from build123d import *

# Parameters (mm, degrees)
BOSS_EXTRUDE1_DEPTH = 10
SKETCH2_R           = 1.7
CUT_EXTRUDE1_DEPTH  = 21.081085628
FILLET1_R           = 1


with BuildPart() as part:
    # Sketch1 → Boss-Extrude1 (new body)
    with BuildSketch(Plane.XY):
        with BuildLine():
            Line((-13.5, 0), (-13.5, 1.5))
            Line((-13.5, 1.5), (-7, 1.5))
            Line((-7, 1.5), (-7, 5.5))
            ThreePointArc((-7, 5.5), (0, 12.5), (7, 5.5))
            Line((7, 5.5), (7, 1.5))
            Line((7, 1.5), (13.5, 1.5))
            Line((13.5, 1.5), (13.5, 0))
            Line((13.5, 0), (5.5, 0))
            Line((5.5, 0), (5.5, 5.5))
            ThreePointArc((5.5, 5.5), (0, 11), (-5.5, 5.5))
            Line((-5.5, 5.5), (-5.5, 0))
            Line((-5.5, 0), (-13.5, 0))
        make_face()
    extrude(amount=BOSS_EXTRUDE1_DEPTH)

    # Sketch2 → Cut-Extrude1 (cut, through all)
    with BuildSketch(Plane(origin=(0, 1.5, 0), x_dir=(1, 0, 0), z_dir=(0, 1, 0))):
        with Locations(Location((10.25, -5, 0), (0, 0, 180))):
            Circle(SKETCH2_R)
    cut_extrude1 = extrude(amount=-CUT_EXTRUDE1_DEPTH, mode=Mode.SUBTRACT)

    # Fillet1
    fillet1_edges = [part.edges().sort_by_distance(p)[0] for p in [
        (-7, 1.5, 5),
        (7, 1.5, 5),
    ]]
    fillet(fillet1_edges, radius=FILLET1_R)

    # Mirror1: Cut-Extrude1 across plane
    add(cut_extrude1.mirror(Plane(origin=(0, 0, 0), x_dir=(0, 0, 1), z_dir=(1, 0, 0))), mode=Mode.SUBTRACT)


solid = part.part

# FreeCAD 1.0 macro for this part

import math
import FreeCAD as App
import Part
import Sketcher
from FreeCAD import Vector


def edges_at(feature, points):
    """Names of the edges that pass closest to the given points."""
    edges = feature.Shape.Edges
    near = lambda p: min(range(len(edges)), key=lambda i: edges[i].distToShape(Part.Vertex(*p))[0])
    return sorted({f"Edge{near(p) + 1}" for p in points})

doc = App.newDocument("Part")
body = doc.addObject("PartDesign::Body", "Body")

sketch1 = doc.addObject("Sketcher::SketchObject", "Sketch")
body.addObject(sketch1)
sketch1.AttachmentSupport = (doc.XY_Plane, [""])
sketch1.MapMode = "FlatFace"
sketch1.addGeometry(Part.LineSegment(Vector(-13.5, 1.5, 0), Vector(-13.5, 0, 0)), False)
sketch1.addGeometry(Part.LineSegment(Vector(-13.5, 0, 0), Vector(-5.5, 0, 0)), False)
sketch1.addGeometry(Part.LineSegment(Vector(-5.5, 0, 0), Vector(-5.5, 5.5, 0)), False)
sketch1.addGeometry(Part.ArcOfCircle(Part.Circle(Vector(0, 5.5, 0), Vector(0, 0, 1), 5.5), math.radians(0), math.radians(180)), False)
sketch1.addGeometry(Part.LineSegment(Vector(5.5, 5.5, 0), Vector(5.5, 0, 0)), False)
sketch1.addGeometry(Part.LineSegment(Vector(5.5, 0, 0), Vector(13.5, 0, 0)), False)
sketch1.addGeometry(Part.LineSegment(Vector(13.5, 0, 0), Vector(13.5, 1.5, 0)), False)
sketch1.addGeometry(Part.LineSegment(Vector(13.5, 1.5, 0), Vector(7, 1.5, 0)), False)
sketch1.addGeometry(Part.LineSegment(Vector(7, 1.5, 0), Vector(7, 5.5, 0)), False)
sketch1.addGeometry(Part.ArcOfCircle(Part.Circle(Vector(0, 5.5, 0), Vector(0, 0, 1), 7), math.radians(0), math.radians(180)), False)
sketch1.addGeometry(Part.LineSegment(Vector(-7, 5.5, 0), Vector(-7, 1.5, 0)), False)
sketch1.addGeometry(Part.LineSegment(Vector(-7, 1.5, 0), Vector(-13.5, 1.5, 0)), False)
sketch1.addConstraint(Sketcher.Constraint("Coincident", 0, 2, 1, 1))
sketch1.addConstraint(Sketcher.Constraint("Coincident", 1, 2, 2, 1))
sketch1.addConstraint(Sketcher.Constraint("Tangent", 2, 2, 3, 2))
sketch1.addConstraint(Sketcher.Constraint("Tangent", 3, 1, 4, 1))
sketch1.addConstraint(Sketcher.Constraint("Coincident", 4, 2, 5, 1))
sketch1.addConstraint(Sketcher.Constraint("Coincident", 5, 2, 6, 1))
sketch1.addConstraint(Sketcher.Constraint("Coincident", 6, 2, 7, 1))
sketch1.addConstraint(Sketcher.Constraint("Coincident", 7, 2, 8, 1))
sketch1.addConstraint(Sketcher.Constraint("Tangent", 8, 2, 9, 1))
sketch1.addConstraint(Sketcher.Constraint("Tangent", 9, 2, 10, 1))
sketch1.addConstraint(Sketcher.Constraint("Coincident", 10, 2, 11, 1))
sketch1.addConstraint(Sketcher.Constraint("Coincident", 11, 2, 0, 1))
sketch1.addConstraint(Sketcher.Constraint("Vertical", 0))
sketch1.addConstraint(Sketcher.Constraint("Horizontal", 1))
sketch1.addConstraint(Sketcher.Constraint("Vertical", 2))
sketch1.addConstraint(Sketcher.Constraint("Vertical", 4))
sketch1.addConstraint(Sketcher.Constraint("Horizontal", 5))
sketch1.addConstraint(Sketcher.Constraint("Vertical", 6))
sketch1.addConstraint(Sketcher.Constraint("Horizontal", 7))
sketch1.addConstraint(Sketcher.Constraint("Vertical", 8))
sketch1.addConstraint(Sketcher.Constraint("Vertical", 10))
sketch1.addConstraint(Sketcher.Constraint("Horizontal", 11))
sketch1.addConstraint(Sketcher.Constraint("Coincident", 9, 3, 3, 3))
sketch1.addConstraint(Sketcher.Constraint("Symmetric", 1, 2, 4, 2, -1, 1))
sketch1.addConstraint(Sketcher.Constraint("Symmetric", 0, 2, 5, 2, -2))
sketch1.addConstraint(Sketcher.Constraint("Horizontal", 7, 2, 10, 2))
sketch1.addConstraint(Sketcher.Constraint("Radius", 9, 7.0))
sketch1.addConstraint(Sketcher.Constraint("Radius", 3, 5.5))
sketch1.addConstraint(Sketcher.Constraint("DistanceX", 1, 1, 1, 2, 8.0))
sketch1.addConstraint(Sketcher.Constraint("DistanceY", 8, 1, 8, 2, 4.0))
sketch1.addConstraint(Sketcher.Constraint("DistanceY", 0, 2, 0, 1, 1.5))
pad1 = doc.addObject("PartDesign::Pad", "Pad")
body.addObject(pad1)
pad1.Profile = sketch1
pad1.Length = 10

sketch2 = doc.addObject("Sketcher::SketchObject", "Sketch001")
body.addObject(sketch2)
sketch2.AttachmentSupport = (doc.XZ_Plane, [""])
sketch2.MapMode = "FlatFace"
sketch2.AttachmentOffset = App.Placement(Vector(0, 0, -1.5), App.Rotation())
sketch2.addGeometry(Part.Circle(Vector(10.2, 5, 0), Vector(0, 0, 1), 1.7), False)
sketch2.addConstraint(Sketcher.Constraint("Diameter", 0, 3.4))
sketch2.addConstraint(Sketcher.Constraint("DistanceY", -1, 1, 0, 3, 5.0))
sketch2.addConstraint(Sketcher.Constraint("DistanceX", -1, 1, 0, 3, 10.25))
pocket1 = doc.addObject("PartDesign::Pocket", "Pocket")
body.addObject(pocket1)
pocket1.Profile = sketch2
pocket1.Type = "ThroughAll"
pocket1.Reversed = True
doc.recompute()

fillet = doc.addObject("PartDesign::Fillet", "Fillet")
body.addObject(fillet)
fillet.Base = (pocket1, edges_at(pocket1, [(-7, 1.5, 5), (7, 1.5, 5)]))
fillet.Radius = 1
doc.recompute()

mirrored = doc.addObject("PartDesign::Mirrored", "Mirrored")
body.addObject(mirrored)
mirrored.Originals = [pocket1]
mirrored.MirrorPlane = (doc.YZ_Plane, [""])
body.Tip = mirrored

doc.recompute()
